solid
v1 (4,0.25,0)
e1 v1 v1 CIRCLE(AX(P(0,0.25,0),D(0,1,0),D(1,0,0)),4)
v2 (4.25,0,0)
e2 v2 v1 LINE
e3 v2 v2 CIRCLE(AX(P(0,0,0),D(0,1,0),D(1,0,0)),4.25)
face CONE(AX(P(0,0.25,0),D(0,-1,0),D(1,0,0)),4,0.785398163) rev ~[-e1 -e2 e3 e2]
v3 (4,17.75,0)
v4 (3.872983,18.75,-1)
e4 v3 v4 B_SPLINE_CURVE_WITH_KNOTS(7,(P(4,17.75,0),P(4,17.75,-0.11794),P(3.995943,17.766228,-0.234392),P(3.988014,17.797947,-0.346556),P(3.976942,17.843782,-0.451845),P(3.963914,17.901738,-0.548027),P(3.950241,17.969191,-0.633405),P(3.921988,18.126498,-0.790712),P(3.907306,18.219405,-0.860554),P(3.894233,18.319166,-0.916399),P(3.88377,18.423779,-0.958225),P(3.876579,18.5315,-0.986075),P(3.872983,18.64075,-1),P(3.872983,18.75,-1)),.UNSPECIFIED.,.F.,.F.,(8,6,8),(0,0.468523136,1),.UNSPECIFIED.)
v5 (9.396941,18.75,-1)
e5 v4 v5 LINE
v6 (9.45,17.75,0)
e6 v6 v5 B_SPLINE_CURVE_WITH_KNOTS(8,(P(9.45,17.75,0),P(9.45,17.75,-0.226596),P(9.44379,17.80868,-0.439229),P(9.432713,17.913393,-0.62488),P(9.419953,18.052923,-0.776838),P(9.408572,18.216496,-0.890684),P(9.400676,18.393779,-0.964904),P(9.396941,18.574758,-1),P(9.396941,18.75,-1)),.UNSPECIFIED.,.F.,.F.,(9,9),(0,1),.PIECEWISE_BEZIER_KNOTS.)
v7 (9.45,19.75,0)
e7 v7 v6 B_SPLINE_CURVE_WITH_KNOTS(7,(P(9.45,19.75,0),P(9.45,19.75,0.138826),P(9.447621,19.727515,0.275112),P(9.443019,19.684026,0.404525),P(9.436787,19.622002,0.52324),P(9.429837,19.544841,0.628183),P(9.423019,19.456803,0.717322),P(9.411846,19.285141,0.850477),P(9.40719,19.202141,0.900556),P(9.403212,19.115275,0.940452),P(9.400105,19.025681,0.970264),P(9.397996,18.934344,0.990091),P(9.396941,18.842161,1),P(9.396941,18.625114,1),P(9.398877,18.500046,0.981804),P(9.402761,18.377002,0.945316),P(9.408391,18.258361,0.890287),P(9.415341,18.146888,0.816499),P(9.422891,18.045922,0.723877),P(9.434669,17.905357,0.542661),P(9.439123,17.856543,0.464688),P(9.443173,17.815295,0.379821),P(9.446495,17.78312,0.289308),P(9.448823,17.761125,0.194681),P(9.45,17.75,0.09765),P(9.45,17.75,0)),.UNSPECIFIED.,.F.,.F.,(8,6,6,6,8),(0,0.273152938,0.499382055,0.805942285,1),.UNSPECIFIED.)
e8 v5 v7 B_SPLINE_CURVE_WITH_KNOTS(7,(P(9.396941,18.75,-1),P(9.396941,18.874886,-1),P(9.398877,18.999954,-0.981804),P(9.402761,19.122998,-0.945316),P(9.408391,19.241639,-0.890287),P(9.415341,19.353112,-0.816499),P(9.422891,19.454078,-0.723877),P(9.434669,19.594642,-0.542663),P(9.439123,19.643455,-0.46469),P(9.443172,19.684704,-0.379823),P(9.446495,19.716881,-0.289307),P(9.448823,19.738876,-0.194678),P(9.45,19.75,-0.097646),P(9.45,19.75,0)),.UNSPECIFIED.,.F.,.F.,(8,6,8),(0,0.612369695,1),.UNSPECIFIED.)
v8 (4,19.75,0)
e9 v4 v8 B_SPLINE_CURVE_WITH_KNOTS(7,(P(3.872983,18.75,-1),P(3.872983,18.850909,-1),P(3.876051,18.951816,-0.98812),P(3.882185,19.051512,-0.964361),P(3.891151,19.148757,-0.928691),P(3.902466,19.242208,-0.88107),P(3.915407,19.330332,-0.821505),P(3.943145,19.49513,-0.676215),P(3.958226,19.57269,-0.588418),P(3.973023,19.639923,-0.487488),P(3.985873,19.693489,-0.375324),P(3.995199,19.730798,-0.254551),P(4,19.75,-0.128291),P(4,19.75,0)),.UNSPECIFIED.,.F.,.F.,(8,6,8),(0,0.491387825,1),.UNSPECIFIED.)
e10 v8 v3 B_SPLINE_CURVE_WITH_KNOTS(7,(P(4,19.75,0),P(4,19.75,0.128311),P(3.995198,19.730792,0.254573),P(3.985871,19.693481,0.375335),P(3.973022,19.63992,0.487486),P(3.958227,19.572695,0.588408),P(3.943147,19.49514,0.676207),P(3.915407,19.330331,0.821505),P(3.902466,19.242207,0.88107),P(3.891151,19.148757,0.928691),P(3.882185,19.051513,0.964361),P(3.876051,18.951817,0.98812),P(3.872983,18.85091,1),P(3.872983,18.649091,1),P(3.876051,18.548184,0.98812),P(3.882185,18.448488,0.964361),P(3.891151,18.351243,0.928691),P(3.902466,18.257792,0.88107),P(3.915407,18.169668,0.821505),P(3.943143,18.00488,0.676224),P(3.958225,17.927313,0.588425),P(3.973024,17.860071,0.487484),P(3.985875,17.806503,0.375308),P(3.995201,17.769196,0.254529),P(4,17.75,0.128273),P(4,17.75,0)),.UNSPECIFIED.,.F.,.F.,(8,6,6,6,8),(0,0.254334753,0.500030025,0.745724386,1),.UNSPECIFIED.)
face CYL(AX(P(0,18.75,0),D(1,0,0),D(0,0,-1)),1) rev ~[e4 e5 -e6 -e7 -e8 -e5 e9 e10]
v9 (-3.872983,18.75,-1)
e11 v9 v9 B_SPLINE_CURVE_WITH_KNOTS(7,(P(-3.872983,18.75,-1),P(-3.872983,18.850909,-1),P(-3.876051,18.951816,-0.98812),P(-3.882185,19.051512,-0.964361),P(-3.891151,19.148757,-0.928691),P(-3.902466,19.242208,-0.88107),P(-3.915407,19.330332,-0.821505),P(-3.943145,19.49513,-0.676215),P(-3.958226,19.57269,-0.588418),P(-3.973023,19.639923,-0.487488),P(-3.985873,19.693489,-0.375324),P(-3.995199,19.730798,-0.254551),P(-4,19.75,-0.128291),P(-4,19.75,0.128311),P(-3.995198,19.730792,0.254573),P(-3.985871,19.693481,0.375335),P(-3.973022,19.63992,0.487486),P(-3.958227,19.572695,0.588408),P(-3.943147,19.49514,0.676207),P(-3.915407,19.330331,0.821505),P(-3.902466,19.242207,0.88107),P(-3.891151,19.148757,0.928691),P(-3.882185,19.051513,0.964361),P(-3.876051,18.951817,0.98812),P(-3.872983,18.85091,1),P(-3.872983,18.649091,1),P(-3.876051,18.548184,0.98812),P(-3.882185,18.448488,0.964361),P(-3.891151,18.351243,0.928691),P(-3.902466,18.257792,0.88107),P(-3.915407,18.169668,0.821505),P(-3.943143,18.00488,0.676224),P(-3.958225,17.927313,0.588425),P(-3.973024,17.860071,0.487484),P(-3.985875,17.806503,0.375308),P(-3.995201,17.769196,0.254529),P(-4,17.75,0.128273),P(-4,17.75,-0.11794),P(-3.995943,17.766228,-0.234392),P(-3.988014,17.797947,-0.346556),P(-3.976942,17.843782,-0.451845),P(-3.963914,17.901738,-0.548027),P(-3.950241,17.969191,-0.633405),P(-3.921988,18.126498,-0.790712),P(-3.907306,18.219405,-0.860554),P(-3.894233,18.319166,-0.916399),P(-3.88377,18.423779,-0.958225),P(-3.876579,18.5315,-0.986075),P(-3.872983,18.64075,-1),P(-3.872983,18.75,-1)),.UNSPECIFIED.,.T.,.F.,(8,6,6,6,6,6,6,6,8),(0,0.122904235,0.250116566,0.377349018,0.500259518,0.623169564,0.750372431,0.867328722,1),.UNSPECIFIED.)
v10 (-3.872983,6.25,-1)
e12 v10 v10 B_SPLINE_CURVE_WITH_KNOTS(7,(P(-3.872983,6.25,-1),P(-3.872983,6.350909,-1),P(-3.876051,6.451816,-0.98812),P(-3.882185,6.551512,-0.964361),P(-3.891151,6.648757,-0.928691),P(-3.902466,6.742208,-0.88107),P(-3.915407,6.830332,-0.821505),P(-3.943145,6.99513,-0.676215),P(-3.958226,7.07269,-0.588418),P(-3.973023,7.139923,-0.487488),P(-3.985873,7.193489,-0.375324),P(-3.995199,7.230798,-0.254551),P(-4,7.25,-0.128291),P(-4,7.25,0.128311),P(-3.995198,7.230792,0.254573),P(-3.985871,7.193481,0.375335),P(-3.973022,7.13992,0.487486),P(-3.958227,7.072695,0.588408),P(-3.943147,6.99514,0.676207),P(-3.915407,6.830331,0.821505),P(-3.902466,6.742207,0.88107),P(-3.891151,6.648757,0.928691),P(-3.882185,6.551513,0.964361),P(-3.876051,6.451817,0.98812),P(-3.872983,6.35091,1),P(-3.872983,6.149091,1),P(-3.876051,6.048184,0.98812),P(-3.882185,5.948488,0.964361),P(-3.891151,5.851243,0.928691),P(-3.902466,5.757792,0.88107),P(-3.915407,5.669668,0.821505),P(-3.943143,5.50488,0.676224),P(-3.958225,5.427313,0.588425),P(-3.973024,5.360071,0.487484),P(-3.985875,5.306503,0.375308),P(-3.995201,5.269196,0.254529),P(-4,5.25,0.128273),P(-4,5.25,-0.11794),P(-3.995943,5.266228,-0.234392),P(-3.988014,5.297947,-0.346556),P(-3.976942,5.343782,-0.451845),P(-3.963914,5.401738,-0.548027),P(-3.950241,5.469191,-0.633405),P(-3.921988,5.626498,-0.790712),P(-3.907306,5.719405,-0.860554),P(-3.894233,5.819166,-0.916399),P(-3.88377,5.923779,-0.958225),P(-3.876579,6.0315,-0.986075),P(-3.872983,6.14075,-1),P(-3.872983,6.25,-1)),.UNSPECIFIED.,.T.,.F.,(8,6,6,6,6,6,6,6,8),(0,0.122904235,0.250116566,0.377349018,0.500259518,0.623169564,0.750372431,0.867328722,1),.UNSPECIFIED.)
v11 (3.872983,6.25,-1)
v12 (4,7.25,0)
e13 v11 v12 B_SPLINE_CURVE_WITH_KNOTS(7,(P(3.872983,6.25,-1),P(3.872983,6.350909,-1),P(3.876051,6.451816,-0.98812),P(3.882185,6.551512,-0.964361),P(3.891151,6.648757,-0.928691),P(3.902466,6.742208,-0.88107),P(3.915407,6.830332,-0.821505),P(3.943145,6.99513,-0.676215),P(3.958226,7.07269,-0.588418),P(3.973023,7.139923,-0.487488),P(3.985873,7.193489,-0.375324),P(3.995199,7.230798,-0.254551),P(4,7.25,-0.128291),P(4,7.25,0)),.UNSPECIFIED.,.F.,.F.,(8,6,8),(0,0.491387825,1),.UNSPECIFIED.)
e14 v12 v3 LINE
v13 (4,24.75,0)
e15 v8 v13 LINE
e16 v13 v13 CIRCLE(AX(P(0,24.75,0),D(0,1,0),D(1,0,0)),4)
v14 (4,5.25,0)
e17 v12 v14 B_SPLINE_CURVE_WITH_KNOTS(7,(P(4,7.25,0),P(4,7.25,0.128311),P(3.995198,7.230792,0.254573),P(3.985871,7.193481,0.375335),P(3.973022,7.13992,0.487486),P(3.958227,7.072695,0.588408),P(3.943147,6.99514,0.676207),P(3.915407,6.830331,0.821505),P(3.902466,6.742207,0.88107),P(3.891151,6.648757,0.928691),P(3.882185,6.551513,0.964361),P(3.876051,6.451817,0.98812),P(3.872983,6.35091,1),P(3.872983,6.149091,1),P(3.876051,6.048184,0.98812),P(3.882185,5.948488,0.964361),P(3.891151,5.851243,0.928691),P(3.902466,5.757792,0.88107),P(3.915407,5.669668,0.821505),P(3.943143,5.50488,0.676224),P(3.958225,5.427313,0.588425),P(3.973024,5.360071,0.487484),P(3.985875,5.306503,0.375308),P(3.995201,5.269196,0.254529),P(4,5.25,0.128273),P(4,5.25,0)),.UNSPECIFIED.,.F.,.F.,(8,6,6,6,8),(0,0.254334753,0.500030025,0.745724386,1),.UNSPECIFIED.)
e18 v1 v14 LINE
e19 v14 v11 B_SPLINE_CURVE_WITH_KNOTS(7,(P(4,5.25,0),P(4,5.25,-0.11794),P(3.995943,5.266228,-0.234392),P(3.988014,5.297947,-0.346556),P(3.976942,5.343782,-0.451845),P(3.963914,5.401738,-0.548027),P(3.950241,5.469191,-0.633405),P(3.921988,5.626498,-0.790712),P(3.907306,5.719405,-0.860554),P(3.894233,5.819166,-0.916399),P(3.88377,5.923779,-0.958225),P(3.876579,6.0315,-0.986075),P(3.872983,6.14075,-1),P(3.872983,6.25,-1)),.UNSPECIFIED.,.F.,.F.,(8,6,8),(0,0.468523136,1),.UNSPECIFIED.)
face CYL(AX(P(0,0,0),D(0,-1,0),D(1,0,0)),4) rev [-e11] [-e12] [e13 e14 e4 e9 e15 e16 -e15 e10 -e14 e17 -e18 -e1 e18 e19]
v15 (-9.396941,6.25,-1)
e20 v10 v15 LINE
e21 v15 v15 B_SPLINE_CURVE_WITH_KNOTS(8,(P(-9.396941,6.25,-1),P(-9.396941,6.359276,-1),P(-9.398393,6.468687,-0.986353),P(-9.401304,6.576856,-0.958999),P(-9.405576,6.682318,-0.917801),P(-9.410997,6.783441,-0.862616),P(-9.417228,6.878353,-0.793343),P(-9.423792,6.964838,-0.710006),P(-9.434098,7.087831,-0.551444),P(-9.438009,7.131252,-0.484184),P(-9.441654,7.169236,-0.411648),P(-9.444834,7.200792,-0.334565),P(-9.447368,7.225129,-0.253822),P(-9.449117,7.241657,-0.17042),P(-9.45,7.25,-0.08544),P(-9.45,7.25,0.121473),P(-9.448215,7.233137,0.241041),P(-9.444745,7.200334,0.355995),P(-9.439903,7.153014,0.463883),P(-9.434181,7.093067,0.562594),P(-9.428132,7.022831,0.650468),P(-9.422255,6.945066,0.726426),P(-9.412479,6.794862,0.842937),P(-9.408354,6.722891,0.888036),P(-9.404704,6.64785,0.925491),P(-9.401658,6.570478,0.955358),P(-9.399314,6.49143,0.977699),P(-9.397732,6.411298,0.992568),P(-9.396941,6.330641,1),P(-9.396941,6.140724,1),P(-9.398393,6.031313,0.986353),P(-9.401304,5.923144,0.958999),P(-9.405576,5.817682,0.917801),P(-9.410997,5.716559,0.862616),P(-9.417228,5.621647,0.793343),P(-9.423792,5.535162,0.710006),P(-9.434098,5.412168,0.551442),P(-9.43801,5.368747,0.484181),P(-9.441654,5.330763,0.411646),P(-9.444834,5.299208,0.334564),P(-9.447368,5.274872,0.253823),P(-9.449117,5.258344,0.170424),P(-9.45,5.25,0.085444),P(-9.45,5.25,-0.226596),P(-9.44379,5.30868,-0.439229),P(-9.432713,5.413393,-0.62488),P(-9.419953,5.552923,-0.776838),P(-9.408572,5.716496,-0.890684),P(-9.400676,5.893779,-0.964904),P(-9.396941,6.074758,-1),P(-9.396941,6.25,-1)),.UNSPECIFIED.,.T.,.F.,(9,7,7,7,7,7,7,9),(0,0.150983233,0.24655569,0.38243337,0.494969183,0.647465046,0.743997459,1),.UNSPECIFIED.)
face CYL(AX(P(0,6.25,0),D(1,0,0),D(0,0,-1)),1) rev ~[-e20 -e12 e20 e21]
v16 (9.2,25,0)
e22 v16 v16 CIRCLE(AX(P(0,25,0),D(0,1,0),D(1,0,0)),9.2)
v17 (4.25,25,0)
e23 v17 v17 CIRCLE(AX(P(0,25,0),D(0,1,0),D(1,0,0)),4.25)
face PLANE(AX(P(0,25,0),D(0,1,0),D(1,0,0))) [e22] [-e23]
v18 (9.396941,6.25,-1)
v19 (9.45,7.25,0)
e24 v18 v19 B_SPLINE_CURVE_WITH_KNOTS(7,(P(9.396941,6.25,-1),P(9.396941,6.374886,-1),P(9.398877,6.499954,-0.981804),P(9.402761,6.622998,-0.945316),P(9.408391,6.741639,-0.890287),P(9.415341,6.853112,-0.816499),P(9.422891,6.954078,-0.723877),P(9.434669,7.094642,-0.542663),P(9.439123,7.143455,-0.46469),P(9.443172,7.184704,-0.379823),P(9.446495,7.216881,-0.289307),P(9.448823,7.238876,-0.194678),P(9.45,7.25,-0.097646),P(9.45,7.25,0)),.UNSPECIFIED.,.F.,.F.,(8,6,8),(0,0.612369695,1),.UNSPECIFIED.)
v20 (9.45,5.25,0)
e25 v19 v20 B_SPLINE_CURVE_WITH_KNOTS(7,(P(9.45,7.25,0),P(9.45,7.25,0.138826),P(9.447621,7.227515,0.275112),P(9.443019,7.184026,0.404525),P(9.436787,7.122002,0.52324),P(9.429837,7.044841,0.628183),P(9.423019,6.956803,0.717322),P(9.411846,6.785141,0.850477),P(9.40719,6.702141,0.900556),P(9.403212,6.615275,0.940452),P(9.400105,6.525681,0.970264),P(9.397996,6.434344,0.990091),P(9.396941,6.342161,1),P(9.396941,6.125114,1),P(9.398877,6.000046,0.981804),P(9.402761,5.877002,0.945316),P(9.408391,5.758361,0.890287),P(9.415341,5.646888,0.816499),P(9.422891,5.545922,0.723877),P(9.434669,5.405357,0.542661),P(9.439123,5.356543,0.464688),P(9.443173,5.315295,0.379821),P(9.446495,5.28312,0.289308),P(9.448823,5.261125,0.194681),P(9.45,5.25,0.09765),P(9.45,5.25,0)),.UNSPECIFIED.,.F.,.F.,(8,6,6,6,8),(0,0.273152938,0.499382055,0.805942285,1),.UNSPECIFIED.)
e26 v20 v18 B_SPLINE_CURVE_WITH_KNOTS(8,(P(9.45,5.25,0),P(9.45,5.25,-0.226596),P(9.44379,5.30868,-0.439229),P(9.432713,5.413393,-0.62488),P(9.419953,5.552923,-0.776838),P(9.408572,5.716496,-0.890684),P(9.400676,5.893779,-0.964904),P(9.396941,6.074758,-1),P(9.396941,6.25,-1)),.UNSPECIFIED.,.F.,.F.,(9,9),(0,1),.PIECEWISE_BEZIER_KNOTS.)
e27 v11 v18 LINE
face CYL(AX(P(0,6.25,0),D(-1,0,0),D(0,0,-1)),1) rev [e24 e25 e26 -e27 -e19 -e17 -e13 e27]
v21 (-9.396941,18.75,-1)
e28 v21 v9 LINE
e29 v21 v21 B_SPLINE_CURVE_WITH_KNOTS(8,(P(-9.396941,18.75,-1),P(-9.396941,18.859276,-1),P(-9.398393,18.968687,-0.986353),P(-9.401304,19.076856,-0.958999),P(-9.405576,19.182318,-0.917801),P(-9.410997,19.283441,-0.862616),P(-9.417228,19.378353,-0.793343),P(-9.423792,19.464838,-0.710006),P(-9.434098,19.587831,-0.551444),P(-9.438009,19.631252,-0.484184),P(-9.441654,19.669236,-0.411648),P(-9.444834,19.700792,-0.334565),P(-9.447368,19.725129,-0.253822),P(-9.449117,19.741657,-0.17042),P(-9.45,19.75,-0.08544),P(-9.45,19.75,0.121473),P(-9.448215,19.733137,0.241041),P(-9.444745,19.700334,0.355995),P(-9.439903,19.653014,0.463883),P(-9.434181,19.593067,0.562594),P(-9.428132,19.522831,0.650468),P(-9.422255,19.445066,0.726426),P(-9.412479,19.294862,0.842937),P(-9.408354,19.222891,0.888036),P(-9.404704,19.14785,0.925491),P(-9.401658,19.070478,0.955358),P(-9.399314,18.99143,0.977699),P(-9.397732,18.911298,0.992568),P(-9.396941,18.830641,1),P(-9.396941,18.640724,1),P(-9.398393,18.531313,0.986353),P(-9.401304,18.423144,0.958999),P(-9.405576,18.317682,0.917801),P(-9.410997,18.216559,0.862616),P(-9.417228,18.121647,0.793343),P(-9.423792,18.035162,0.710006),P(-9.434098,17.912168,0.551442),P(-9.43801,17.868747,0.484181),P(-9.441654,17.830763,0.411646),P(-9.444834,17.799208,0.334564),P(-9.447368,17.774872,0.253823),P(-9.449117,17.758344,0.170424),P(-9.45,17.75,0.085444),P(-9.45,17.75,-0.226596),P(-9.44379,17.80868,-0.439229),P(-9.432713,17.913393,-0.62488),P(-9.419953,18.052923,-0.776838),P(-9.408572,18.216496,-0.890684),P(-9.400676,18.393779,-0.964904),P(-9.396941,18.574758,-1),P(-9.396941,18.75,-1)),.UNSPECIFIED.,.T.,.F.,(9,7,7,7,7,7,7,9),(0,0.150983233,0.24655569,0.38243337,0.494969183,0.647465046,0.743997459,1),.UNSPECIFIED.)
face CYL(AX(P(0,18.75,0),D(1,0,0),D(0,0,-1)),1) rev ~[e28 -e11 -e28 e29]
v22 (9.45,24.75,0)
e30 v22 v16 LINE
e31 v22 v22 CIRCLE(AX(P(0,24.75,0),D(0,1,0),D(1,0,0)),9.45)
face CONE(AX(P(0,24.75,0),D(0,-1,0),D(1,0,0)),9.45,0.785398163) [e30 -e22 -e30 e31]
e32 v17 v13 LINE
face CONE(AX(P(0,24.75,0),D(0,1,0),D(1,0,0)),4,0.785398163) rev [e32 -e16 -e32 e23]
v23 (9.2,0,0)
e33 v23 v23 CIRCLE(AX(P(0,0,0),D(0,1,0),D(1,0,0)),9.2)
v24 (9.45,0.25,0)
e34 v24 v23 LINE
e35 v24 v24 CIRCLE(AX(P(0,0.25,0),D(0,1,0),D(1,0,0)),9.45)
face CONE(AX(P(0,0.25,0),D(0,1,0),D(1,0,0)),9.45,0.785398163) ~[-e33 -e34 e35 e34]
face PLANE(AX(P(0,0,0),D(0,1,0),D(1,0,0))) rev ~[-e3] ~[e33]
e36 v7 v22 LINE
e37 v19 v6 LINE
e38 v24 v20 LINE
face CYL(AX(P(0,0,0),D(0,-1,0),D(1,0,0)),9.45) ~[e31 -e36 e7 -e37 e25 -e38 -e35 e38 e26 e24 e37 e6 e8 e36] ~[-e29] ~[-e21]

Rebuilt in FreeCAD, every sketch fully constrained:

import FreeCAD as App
import Part
import Sketcher


def edges_at(feature, points):
    """Names of the edges that pass closest to the given points."""
    edges = feature.Shape.Edges
    near = lambda p: min(range(len(edges)), key=lambda i: edges[i].distToShape(Part.Vertex(*p))[0])
    return sorted({f"Edge{near(p) + 1}" for p in points})

doc = App.newDocument("Part")
body = doc.addObject("PartDesign::Body", "Body")

# Sketch on XZ plane
sketch1 = body.newObject("Sketcher::SketchObject", "Sketch")
sketch1.AttachmentSupport = (doc.getObject("XZ_Plane"), [""])
sketch1.MapMode = "FlatFace"
sketch1.addGeometry([
    Part.Circle(App.Vector(0, 0, 0), App.Vector(0, 0, 1), 9.45),
    Part.Circle(App.Vector(0, 0, 0), App.Vector(0, 0, 1), 4),
], False)
sketch1.addConstraint([
    Sketcher.Constraint("Coincident", 0, 3, -1, 1),
    Sketcher.Constraint("Coincident", 1, 3, -1, 1),
    Sketcher.Constraint("Diameter", 1, 8.0),
    Sketcher.Constraint("Diameter", 0, 18.9),
])
pad1 = body.newObject("PartDesign::Pad", "Pad")
pad1.Profile = sketch1
pad1.Length = 25
pad1.Reversed = True

# Sketch on YZ plane
sketch2 = body.newObject("Sketcher::SketchObject", "Sketch001")
sketch2.AttachmentSupport = (doc.getObject("YZ_Plane"), [""])
sketch2.MapMode = "FlatFace"
sketch2.addGeometry([
    Part.Circle(App.Vector(6.25, 0, 0), App.Vector(0, 0, 1), 1),
    Part.Circle(App.Vector(18.75, 0, 0), App.Vector(0, 0, 1), 1),
], False)
sketch2.addConstraint([
    Sketcher.Constraint("Equal", 0, 1),
    Sketcher.Constraint("PointOnObject", 0, 3, -1),
    Sketcher.Constraint("PointOnObject", 1, 3, -1),
    Sketcher.Constraint("Diameter", 0, 2.0),
    Sketcher.Constraint("DistanceX", 0, 3, 1, 3, 12.5),
    Sketcher.Constraint("DistanceX", -1, 1, 0, 3, 6.25),
])
pocket1 = body.newObject("PartDesign::Pocket", "Pocket")
pocket1.Profile = sketch2
pocket1.Length = 25
pocket1.Midplane = True
doc.recompute()

chamfer = body.newObject("PartDesign::Chamfer", "Chamfer")
chamfer.Base = (pocket1, edges_at(pocket1, [
    (-9.45, 0, 0),
    (-9.45, 25, 0),
    (-4, 0, 0),
    (-4, 25, 0),
]))
chamfer.Size = 0.25

doc.recompute()
